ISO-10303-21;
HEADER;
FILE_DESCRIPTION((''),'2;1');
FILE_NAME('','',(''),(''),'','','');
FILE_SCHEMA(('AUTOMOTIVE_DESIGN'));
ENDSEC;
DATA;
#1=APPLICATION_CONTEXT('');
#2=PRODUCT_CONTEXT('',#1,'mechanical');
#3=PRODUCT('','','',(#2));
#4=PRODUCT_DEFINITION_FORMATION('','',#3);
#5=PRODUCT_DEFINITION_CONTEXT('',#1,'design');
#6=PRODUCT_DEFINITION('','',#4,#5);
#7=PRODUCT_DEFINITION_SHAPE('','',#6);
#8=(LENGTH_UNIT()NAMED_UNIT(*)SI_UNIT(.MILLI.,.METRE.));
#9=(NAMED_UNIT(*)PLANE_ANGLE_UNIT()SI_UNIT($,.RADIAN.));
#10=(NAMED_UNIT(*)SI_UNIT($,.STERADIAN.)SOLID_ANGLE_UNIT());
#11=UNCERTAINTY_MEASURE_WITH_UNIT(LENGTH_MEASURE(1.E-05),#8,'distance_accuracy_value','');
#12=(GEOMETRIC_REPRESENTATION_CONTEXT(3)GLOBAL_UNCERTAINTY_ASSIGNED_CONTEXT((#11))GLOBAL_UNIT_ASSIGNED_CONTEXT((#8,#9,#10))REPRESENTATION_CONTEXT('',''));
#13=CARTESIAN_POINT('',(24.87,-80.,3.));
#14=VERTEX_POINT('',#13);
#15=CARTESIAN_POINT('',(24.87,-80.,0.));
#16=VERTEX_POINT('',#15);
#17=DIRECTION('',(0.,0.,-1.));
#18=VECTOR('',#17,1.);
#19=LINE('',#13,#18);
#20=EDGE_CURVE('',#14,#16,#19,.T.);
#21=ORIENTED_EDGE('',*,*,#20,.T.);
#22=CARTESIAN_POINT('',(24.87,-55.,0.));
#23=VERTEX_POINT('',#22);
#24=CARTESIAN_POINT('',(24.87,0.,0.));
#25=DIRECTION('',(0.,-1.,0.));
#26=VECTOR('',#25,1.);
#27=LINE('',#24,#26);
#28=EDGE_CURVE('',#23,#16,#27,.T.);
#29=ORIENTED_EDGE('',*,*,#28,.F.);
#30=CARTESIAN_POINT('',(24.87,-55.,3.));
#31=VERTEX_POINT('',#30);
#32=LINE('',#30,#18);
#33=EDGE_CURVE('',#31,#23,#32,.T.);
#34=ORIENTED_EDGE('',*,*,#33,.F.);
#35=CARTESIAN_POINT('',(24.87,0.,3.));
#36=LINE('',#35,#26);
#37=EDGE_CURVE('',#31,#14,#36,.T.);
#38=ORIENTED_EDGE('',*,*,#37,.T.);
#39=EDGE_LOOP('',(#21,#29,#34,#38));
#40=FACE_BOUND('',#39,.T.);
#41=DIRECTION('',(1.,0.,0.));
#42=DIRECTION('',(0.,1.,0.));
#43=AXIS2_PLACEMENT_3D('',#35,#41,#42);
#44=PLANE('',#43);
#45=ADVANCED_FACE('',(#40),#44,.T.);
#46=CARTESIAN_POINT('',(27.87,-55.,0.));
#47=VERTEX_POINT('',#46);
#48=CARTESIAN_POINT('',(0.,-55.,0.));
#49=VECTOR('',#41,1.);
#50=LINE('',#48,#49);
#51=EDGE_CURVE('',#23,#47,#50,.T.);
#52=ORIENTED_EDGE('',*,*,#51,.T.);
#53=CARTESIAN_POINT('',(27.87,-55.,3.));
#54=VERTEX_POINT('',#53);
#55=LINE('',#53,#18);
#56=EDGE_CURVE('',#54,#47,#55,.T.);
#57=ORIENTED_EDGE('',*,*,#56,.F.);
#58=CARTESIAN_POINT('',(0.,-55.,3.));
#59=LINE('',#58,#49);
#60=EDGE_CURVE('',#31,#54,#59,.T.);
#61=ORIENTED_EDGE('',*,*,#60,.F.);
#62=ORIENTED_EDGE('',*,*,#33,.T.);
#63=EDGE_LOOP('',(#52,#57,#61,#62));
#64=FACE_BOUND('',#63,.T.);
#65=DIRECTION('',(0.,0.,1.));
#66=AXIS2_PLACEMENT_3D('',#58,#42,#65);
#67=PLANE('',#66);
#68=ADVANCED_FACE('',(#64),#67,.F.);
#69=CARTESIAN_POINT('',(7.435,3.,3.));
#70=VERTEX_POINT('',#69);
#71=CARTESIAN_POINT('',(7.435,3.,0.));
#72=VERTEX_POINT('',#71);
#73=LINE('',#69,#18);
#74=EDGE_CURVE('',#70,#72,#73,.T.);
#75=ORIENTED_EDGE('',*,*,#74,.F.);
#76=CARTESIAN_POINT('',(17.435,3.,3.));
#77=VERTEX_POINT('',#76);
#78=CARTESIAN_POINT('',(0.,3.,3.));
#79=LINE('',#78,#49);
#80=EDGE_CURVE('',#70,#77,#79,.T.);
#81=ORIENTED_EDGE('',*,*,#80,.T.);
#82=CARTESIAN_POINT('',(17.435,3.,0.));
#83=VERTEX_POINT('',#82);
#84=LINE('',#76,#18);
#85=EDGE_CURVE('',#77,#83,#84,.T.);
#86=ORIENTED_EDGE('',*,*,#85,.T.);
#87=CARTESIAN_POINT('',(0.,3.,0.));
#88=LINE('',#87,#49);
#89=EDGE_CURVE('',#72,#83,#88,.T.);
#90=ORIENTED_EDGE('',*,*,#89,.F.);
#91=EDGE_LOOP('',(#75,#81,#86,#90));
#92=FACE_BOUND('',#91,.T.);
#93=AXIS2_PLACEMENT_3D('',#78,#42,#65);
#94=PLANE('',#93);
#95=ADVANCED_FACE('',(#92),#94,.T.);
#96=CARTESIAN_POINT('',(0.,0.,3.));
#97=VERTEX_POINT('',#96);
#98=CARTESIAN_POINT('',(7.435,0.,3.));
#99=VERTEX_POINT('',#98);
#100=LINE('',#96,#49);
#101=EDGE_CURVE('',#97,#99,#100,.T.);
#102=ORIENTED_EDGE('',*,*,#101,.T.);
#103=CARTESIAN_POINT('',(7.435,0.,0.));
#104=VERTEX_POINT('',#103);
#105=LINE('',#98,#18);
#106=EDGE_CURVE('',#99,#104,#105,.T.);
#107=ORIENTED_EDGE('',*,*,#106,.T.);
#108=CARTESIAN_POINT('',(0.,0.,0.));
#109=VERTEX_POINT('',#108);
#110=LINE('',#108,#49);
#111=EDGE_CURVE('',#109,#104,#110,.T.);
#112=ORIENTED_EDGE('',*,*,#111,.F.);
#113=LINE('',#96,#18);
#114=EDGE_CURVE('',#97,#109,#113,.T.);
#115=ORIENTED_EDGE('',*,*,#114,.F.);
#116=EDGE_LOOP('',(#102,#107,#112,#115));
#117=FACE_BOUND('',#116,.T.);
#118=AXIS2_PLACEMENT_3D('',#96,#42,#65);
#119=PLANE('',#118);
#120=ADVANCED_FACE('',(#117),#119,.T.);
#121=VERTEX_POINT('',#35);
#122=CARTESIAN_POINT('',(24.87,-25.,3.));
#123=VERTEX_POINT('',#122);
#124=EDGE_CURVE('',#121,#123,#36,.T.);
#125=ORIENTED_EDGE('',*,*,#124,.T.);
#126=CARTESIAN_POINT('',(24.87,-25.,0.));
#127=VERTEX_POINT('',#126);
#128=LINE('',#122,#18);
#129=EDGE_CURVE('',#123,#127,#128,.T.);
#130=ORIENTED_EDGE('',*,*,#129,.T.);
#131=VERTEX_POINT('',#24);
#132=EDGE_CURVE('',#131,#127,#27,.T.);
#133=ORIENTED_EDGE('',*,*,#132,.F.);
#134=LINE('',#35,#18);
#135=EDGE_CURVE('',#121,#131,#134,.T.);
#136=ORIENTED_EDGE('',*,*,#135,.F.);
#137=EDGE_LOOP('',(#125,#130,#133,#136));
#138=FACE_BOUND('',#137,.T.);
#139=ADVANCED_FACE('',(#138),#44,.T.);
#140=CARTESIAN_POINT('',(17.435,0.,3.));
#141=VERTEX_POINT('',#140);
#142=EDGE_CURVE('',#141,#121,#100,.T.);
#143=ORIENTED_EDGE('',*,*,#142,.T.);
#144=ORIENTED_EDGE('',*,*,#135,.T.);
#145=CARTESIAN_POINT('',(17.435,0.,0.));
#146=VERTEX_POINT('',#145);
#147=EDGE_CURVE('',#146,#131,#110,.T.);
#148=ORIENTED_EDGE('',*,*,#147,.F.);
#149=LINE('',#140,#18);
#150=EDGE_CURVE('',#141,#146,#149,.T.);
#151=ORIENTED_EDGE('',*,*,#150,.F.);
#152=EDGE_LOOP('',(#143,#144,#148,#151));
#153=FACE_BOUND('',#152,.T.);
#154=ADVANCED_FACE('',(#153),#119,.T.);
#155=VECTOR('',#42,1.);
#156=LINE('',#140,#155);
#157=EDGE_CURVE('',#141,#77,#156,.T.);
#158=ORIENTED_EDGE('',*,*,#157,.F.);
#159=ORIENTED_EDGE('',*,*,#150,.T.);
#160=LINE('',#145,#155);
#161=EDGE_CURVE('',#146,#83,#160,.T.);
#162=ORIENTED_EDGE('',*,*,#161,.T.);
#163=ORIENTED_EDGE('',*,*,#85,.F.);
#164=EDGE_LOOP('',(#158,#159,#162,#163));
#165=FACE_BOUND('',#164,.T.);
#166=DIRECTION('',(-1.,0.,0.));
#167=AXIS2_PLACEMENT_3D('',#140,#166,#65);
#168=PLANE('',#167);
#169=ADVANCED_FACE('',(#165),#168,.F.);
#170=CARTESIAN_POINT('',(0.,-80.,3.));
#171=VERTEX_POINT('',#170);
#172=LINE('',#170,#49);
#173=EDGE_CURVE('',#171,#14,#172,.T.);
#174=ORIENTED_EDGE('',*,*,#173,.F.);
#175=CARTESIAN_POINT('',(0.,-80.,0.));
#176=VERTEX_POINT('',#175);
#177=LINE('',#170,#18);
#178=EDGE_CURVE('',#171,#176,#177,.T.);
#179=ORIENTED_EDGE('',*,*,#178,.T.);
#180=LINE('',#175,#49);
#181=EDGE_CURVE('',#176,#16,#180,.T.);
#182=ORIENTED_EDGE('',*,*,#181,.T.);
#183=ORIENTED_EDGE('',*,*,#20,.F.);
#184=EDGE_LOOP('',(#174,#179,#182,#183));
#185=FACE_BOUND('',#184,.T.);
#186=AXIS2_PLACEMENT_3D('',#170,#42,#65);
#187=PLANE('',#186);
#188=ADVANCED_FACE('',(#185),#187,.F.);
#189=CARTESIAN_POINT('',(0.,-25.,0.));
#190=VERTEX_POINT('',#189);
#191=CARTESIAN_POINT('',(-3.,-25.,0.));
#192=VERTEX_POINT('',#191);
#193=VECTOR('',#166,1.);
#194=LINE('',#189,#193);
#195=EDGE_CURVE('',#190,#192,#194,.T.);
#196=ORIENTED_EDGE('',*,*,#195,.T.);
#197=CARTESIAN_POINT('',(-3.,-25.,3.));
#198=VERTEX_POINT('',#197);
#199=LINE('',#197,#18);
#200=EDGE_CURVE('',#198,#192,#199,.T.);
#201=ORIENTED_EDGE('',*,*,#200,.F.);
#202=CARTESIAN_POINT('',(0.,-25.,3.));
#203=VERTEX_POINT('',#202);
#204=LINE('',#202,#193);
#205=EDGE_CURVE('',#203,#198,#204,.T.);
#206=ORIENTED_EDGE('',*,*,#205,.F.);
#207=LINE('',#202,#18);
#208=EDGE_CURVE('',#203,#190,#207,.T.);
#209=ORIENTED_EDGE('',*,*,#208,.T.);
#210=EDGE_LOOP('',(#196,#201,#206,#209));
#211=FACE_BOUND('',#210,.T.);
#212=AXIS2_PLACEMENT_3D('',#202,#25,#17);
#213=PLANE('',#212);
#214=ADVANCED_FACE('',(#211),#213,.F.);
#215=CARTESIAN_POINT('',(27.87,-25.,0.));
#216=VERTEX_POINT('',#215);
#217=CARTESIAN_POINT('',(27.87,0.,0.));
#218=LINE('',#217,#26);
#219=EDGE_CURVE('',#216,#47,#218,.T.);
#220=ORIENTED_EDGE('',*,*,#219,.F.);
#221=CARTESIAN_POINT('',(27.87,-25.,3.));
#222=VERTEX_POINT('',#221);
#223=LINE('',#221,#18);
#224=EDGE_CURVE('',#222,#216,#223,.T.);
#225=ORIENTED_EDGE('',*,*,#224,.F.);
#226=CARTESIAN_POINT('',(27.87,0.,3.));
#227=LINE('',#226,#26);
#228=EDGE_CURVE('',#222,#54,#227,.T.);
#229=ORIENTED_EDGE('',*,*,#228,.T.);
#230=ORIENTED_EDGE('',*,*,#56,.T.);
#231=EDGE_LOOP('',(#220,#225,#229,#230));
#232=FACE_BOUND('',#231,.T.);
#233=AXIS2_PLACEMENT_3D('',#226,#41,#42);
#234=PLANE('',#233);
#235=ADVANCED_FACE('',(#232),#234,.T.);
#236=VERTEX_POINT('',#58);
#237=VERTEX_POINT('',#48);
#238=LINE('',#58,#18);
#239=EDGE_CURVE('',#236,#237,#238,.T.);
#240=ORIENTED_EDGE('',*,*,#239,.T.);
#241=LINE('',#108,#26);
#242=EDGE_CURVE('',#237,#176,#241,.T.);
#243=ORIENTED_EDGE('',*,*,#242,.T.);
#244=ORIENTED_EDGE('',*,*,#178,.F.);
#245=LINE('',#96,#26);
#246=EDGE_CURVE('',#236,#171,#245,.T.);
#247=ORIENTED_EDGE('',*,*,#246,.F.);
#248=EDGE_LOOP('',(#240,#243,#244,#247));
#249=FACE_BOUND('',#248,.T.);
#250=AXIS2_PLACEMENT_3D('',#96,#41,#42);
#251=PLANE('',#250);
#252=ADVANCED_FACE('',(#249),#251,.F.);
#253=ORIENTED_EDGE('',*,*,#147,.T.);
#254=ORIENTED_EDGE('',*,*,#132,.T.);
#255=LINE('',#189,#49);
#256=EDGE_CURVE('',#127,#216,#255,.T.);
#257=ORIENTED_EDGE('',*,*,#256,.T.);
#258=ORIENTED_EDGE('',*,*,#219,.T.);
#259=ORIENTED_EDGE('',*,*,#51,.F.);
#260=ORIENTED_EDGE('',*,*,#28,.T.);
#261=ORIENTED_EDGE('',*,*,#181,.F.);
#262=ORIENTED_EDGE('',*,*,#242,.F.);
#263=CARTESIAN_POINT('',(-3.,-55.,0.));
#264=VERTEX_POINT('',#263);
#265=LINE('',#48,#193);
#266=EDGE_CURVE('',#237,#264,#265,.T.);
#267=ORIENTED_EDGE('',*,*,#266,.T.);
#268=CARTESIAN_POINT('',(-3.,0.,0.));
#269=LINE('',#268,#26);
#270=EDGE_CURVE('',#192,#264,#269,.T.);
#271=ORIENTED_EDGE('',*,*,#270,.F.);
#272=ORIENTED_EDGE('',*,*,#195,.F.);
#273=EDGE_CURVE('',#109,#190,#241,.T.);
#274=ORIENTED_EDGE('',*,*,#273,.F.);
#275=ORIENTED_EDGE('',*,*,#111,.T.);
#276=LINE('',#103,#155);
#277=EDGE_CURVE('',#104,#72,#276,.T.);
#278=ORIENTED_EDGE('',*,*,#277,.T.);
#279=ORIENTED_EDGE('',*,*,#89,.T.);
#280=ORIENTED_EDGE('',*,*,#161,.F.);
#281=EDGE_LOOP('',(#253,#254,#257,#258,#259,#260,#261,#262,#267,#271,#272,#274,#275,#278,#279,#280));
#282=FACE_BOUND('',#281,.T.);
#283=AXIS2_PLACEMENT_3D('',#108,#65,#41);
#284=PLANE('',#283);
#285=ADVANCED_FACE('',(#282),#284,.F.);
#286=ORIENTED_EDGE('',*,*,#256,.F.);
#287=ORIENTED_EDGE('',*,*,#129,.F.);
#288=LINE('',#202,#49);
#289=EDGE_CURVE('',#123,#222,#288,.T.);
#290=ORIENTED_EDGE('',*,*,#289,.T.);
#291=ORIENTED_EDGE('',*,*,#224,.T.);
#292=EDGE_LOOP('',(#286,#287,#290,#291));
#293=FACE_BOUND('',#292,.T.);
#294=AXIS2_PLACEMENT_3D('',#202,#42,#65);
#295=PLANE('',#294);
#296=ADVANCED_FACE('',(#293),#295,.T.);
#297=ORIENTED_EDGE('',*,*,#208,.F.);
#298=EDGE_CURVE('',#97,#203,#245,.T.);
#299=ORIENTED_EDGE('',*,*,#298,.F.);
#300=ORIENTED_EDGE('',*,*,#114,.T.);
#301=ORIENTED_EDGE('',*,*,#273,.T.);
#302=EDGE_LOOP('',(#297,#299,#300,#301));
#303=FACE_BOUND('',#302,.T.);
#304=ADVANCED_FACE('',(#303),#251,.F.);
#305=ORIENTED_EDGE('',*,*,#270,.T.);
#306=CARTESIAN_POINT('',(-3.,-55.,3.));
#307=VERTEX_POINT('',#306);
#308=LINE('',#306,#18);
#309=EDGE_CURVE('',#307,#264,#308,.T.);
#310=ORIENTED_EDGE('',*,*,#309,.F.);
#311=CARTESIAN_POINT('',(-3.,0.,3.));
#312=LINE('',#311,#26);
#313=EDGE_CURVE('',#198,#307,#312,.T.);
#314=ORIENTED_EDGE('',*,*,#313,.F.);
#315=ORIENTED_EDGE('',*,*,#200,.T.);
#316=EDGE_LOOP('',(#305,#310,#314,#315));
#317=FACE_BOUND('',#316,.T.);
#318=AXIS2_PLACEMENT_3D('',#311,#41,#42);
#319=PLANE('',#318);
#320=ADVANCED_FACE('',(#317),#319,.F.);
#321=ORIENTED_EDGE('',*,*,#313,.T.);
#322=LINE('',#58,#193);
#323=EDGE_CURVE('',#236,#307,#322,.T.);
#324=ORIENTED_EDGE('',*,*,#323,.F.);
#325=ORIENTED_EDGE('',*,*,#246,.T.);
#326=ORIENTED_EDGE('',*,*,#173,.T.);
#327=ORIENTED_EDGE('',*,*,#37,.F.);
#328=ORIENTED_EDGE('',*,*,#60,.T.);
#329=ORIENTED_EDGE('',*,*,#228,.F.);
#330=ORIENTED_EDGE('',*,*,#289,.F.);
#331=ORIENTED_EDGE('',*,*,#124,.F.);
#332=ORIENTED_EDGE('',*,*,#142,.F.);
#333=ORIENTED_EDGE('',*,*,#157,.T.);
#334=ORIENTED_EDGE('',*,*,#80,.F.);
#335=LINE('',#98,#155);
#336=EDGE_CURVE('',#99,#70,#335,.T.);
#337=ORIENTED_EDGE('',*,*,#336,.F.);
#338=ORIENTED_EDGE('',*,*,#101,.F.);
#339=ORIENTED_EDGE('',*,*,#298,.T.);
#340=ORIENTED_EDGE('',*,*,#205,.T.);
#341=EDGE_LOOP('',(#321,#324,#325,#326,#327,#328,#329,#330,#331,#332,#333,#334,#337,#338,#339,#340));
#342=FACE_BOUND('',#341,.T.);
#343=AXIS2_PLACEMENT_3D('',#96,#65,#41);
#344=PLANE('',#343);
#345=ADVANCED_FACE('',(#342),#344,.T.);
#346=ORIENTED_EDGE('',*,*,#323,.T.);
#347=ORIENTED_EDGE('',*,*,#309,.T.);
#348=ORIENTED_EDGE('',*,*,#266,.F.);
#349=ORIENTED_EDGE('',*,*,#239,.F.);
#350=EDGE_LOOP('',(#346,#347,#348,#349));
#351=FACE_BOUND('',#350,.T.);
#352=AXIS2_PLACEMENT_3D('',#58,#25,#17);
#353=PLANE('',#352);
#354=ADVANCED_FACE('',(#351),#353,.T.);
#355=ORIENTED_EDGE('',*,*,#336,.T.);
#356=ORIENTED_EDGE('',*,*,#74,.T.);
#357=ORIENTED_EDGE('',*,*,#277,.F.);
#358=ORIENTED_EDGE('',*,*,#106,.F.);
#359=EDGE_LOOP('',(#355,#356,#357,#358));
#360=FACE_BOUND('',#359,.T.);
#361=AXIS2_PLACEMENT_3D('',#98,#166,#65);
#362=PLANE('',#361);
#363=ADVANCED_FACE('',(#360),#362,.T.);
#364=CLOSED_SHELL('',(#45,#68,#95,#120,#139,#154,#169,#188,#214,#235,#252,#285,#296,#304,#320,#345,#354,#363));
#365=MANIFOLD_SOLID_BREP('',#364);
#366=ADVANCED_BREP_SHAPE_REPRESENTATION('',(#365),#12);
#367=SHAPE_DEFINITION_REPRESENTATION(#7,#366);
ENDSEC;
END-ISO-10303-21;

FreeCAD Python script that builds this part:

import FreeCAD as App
import Part
import Sketcher
from FreeCAD import Vector
Q = App.Units.Quantity

doc = App.newDocument("Part")
body = doc.addObject("PartDesign::Body", "Body")

# Sketch on XY plane
sketch1 = body.newObject("Sketcher::SketchObject", "Sketch")
sketch1.AttachmentSupport = (doc.getObject("XY_Plane"), [""])
sketch1.MapMode = "FlatFace"
sketch1.addGeometry([
    Part.LineSegment(Vector(24.9, -80, 0), Vector(24.9, -55, 0)),  # 0
    Part.LineSegment(Vector(24.9, -55, 0), Vector(27.9, -55, 0)),  # 1
    Part.LineSegment(Vector(27.9, -55, 0), Vector(27.9, -25, 0)),  # 2
    Part.LineSegment(Vector(27.9, -25, 0), Vector(24.9, -25, 0)),  # 3
    Part.LineSegment(Vector(24.9, -25, 0), Vector(24.9, 0, 0)),  # 4
    Part.LineSegment(Vector(24.9, 0, 0), Vector(17.4, 0, 0)),  # 5
    Part.LineSegment(Vector(17.4, 0, 0), Vector(17.4, 3, 0)),  # 6
    Part.LineSegment(Vector(17.4, 3, 0), Vector(7.4, 3, 0)),  # 7
    Part.LineSegment(Vector(7.4, 3, 0), Vector(7.4, 0, 0)),  # 8
    Part.LineSegment(Vector(7.4, 0, 0), Vector(0, 0, 0)),  # 9
    Part.LineSegment(Vector(0, 0, 0), Vector(0, -25, 0)),  # 10
    Part.LineSegment(Vector(0, -25, 0), Vector(-3, -25, 0)),  # 11
    Part.LineSegment(Vector(-3, -25, 0), Vector(-3, -55, 0)),  # 12
    Part.LineSegment(Vector(-3, -55, 0), Vector(0, -55, 0)),  # 13
    Part.LineSegment(Vector(0, -55, 0), Vector(0, -80, 0)),  # 14
    Part.LineSegment(Vector(0, -80, 0), Vector(24.9, -80, 0)),  # 15
], False)
sketch1.addConstraint([
    Sketcher.Constraint("Coincident", 0, 2, 1, 1),
    Sketcher.Constraint("Coincident", 1, 2, 2, 1),
    Sketcher.Constraint("Coincident", 2, 2, 3, 1),
    Sketcher.Constraint("Coincident", 3, 2, 4, 1),
    Sketcher.Constraint("Coincident", 4, 2, 5, 1),
    Sketcher.Constraint("Coincident", 5, 2, 6, 1),
    Sketcher.Constraint("Coincident", 6, 2, 7, 1),
    Sketcher.Constraint("Coincident", 7, 2, 8, 1),
    Sketcher.Constraint("Coincident", 8, 2, 9, 1),
    Sketcher.Constraint("Coincident", 9, 2, 10, 1),
    Sketcher.Constraint("Coincident", 10, 2, 11, 1),
    Sketcher.Constraint("Coincident", 11, 2, 12, 1),
    Sketcher.Constraint("Coincident", 12, 2, 13, 1),
    Sketcher.Constraint("Coincident", 13, 2, 14, 1),
    Sketcher.Constraint("Coincident", 14, 2, 15, 1),
    Sketcher.Constraint("Coincident", 15, 2, 0, 1),
    Sketcher.Constraint("Vertical", 0),
    Sketcher.Constraint("Horizontal", 1),
    Sketcher.Constraint("Vertical", 2),
    Sketcher.Constraint("Horizontal", 3),
    Sketcher.Constraint("Vertical", 4),
    Sketcher.Constraint("Horizontal", 5),
    Sketcher.Constraint("Vertical", 6),
    Sketcher.Constraint("Horizontal", 7),
    Sketcher.Constraint("Vertical", 8),
    Sketcher.Constraint("Horizontal", 9),
    Sketcher.Constraint("Vertical", 10),
    Sketcher.Constraint("Horizontal", 11),
    Sketcher.Constraint("Vertical", 12),
    Sketcher.Constraint("Horizontal", 13),
    Sketcher.Constraint("Vertical", 14),
    Sketcher.Constraint("Horizontal", 15),
    Sketcher.Constraint("Coincident", 9, 2, -1, 1),
    Sketcher.Constraint("PointOnObject", 4, 2, -1),
    Sketcher.Constraint("PointOnObject", 13, 2, -2),
    Sketcher.Constraint("Horizontal", 3, 2, 10, 2),
    Sketcher.Constraint("Horizontal", 1, 2, 12, 2),
    Sketcher.Constraint("Vertical", 0, 2, 3, 2),
    Sketcher.Constraint("Equal", 5, 9),
    Sketcher.Constraint("Equal", 3, 11),
    Sketcher.Constraint("Equal", 0, 4),
    Sketcher.Constraint("Equal", 13, 6),
    Sketcher.Constraint("DistanceX", 1, 1, 1, 2, Q("3 mm")),
    Sketcher.Constraint("DistanceX", 7, 2, 7, 1, Q("10 mm")),
    Sketcher.Constraint("DistanceY", 0, 1, 0, 2, Q("25 mm")),
    Sketcher.Constraint("DistanceY", 2, 1, 2, 2, Q("30 mm")),
    Sketcher.Constraint("DistanceX", 15, 1, 15, 2, Q("24.87 mm")),
])
pad1 = body.newObject("PartDesign::Pad", "Pad")
pad1.Profile = sketch1
pad1.Length = 3

doc.recompute()
